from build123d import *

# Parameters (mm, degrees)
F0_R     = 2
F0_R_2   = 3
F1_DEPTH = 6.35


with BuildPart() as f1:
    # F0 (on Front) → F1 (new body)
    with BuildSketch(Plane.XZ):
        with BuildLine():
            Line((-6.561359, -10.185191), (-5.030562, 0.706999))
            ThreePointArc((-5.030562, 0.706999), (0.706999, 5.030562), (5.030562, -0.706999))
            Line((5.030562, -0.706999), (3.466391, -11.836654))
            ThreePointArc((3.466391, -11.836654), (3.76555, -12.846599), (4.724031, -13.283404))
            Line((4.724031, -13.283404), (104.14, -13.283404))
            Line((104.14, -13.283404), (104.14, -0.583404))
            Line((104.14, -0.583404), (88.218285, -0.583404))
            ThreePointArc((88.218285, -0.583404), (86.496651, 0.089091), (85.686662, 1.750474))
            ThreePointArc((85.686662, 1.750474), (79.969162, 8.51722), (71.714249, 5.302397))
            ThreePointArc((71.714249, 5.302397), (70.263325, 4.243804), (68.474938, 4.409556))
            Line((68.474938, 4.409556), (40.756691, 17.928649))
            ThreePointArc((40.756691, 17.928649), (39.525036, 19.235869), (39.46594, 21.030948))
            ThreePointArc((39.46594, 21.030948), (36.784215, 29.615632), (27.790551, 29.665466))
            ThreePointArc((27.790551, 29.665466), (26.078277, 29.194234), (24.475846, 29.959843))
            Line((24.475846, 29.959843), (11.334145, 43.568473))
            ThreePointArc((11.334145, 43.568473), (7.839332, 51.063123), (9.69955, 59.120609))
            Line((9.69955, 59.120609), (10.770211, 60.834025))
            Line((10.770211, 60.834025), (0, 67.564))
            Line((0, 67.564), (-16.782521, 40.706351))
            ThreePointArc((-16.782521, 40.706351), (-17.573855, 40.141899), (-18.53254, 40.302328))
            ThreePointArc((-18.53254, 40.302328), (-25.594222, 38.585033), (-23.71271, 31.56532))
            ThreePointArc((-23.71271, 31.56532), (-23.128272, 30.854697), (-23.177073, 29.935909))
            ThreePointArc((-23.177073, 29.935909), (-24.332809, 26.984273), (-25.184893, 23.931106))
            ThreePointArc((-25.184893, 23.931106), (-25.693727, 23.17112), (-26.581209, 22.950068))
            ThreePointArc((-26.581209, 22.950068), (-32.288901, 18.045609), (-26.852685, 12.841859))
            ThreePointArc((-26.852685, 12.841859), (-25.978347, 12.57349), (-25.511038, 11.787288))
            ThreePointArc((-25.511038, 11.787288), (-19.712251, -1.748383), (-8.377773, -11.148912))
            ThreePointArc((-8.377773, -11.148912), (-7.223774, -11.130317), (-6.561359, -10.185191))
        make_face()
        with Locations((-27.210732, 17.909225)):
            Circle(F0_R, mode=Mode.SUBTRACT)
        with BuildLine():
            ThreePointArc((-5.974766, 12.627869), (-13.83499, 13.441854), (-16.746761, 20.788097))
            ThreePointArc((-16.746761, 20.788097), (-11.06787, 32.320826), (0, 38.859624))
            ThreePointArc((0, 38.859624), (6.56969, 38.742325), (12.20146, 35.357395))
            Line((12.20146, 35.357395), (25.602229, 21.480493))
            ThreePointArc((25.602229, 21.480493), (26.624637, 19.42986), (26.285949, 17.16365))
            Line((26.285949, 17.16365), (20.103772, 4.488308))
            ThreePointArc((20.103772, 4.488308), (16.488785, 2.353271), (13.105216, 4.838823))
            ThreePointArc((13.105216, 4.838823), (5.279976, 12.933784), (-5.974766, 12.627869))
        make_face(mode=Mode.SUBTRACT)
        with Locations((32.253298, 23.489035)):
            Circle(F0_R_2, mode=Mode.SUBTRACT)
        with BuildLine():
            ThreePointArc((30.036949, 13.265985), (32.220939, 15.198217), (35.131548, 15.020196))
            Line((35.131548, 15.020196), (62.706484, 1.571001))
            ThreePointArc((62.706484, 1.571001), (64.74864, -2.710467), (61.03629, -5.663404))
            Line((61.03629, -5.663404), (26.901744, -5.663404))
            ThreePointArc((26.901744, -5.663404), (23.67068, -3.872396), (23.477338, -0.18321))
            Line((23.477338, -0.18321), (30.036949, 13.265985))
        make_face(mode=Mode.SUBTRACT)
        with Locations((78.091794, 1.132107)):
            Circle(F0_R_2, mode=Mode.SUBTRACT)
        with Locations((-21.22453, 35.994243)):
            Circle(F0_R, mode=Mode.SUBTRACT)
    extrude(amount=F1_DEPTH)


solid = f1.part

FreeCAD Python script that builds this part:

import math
import FreeCAD as App
import Part
import Sketcher
from FreeCAD import Vector
Q = App.Units.Quantity

doc = App.newDocument("Part")
body = doc.addObject("PartDesign::Body", "Body")

sketch1 = doc.addObject("Sketcher::SketchObject", "Sketch")
body.addObject(sketch1)
sketch1.AttachmentSupport = (doc.XZ_Plane, [""])
sketch1.MapMode = "FlatFace"
sketch1.addGeometry(Part.LineSegment(Vector(-6.561359, -10.185191, 0), Vector(-5.030562, 0.706999, 0)), False)
sketch1.addGeometry(Part.ArcOfCircle(Part.Circle(Vector(0, 0, 0), Vector(0, 0, 1), 5.08), math.radians(-7.999996), math.radians(172.000004)), False)
sketch1.addGeometry(Part.LineSegment(Vector(5.030562, -0.706999, 0), Vector(3.466391, -11.836654, 0)), False)
sketch1.addGeometry(Part.ArcOfCircle(Part.Circle(Vector(4.724031, -12.013404, 0), Vector(0, 0, 1), 1.27), math.radians(171.999971), math.radians(270.000002)), False)
sketch1.addGeometry(Part.LineSegment(Vector(4.724031, -13.283404, 0), Vector(104.14, -13.283404, 0)), False)
sketch1.addGeometry(Part.LineSegment(Vector(104.14, -13.283404, 0), Vector(104.14, -0.583404, 0)), False)
sketch1.addGeometry(Part.LineSegment(Vector(104.14, -0.583404, 0), Vector(88.218285, -0.583404, 0)), False)
sketch1.addGeometry(Part.ArcOfCircle(Part.Circle(Vector(88.218286, 1.956597, 0), Vector(0, 0, 1), 2.540001), math.radians(-175.34528), math.radians(-90.000021)), False)
sketch1.addGeometry(Part.ArcOfCircle(Part.Circle(Vector(78.091794, 1.132108, 0), Vector(0, 0, 1), 7.62), math.radians(4.654697), math.radians(146.819248)), False)
sketch1.addGeometry(Part.ArcOfCircle(Part.Circle(Vector(69.588401, 6.692492, 0), Vector(0, 0, 1), 2.539999), math.radians(-116.000009), math.radians(-33.180721)), False)
sketch1.addGeometry(Part.LineSegment(Vector(68.474938, 4.409556, 0), Vector(40.756691, 17.928649, 0)), False)
sketch1.addGeometry(Part.ArcOfCircle(Part.Circle(Vector(41.870153, 20.211585, 0), Vector(0, 0, 1), 2.539999), math.radians(161.180736), math.radians(244.000013)), False)
sketch1.addGeometry(Part.ArcOfCircle(Part.Circle(Vector(32.253297, 23.489035, 0), Vector(0, 0, 1), 7.62), math.radians(-18.819241), math.radians(125.849787)), False)
sketch1.addGeometry(Part.ArcOfCircle(Part.Circle(Vector(26.302969, 31.724277, 0), Vector(0, 0, 1), 2.540001), math.radians(-135.99996), math.radians(-54.15022)), False)
sketch1.addGeometry(Part.LineSegment(Vector(24.475846, 29.959843, 0), Vector(11.334145, 43.568473, 0)), False)
sketch1.addGeometry(Part.ArcOfCircle(Part.Circle(Vector(20.469758, 52.390634, 0), Vector(0, 0, 1), 12.699998), math.radians(147.999991), math.radians(224.000006)), False)
sketch1.addGeometry(Part.LineSegment(Vector(9.69955, 59.120609, 0), Vector(10.770211, 60.834025, 0)), False)
sketch1.addGeometry(Part.LineSegment(Vector(10.770211, 60.834025, 0), Vector(0, 67.564, 0)), False)
sketch1.addGeometry(Part.LineSegment(Vector(0, 67.564, 0), Vector(-16.782521, 40.706351, 0)), False)
sketch1.addGeometry(Part.ArcOfCircle(Part.Circle(Vector(-17.859542, 41.37935, 0), Vector(0, 0, 1), 1.270001), math.radians(-121.99998), math.radians(-32.000064)), False)
sketch1.addGeometry(Part.ArcOfCircle(Part.Circle(Vector(-21.22453, 35.994243, 0), Vector(0, 0, 1), 5.08), math.radians(58.000004), math.radians(240.672612)), False)
sketch1.addGeometry(Part.ArcOfCircle(Part.Circle(Vector(-24.334756, 30.458089, 0), Vector(0, 0, 1), 1.270001), math.radians(-24.278034), math.radians(60.67257)), False)
sketch1.addGeometry(Part.ArcOfCircle(Part.Circle(Vector(5.429792, 17.032582, 0), Vector(0, 0, 1), 31.382297), math.radians(155.721911), math.radians(167.301413)), False)
sketch1.addGeometry(Part.ArcOfCircle(Part.Circle(Vector(-26.423829, 24.210279, 0), Vector(0, 0, 1), 1.27), math.radians(-97.118473), math.radians(-12.698521)), False)
sketch1.addGeometry(Part.ArcOfCircle(Part.Circle(Vector(-27.210732, 17.909225, 0), Vector(0, 0, 1), 5.08), math.radians(82.881497), math.radians(274.041659)), False)
sketch1.addGeometry(Part.ArcOfCircle(Part.Circle(Vector(-26.763174, 11.575016, 0), Vector(0, 0, 1), 1.270001), math.radians(9.621757), math.radians(94.041625)), False)
sketch1.addGeometry(Part.ArcOfCircle(Part.Circle(Vector(5.42974, 17.0326, 0), Vector(0, 0, 1), 31.382241), math.radians(-170.378269), math.radians(-116.102513)), False)
sketch1.addGeometry(Part.ArcOfCircle(Part.Circle(Vector(-7.819001, -10.00844, 0), Vector(0, 0, 1), 1.270001), math.radians(-116.102456), math.radians(-8.000062)), False)
sketch1.addGeometry(Part.LineSegment(Vector(23.477338, -0.18321, 0), Vector(30.036949, 13.265985, 0)), False)
sketch1.addGeometry(Part.ArcOfCircle(Part.Circle(Vector(33.461353, 11.595793, 0), Vector(0, 0, 1), 3.809998), math.radians(63.999976), math.radians(154.000022)), False)
sketch1.addGeometry(Part.LineSegment(Vector(35.131548, 15.020196, 0), Vector(62.706484, 1.571001, 0)), False)
sketch1.addGeometry(Part.ArcOfCircle(Part.Circle(Vector(61.03629, -1.853404, 0), Vector(0, 0, 1), 3.81), math.radians(-90.000001), math.radians(64.000001)), False)
sketch1.addGeometry(Part.LineSegment(Vector(61.03629, -5.663404, 0), Vector(26.901744, -5.663404, 0)), False)
sketch1.addGeometry(Part.ArcOfCircle(Part.Circle(Vector(26.901744, -1.853404, 0), Vector(0, 0, 1), 3.81), math.radians(154.000004), math.radians(270.000006)), False)
sketch1.addGeometry(Part.Circle(Vector(78.091794, 1.132107, 0), Vector(0, 0, 1), 3), False)
sketch1.addGeometry(Part.Circle(Vector(-27.210732, 17.909225, 0), Vector(0, 0, 1), 2), False)
sketch1.addGeometry(Part.ArcOfCircle(Part.Circle(Vector(0, 0.000002, 0), Vector(0, 0, 1), 13.969999), math.radians(20.265592), math.radians(115.320768)), False)
sketch1.addGeometry(Part.ArcOfCircle(Part.Circle(Vector(-9.233729, 19.515798, 0), Vector(0, 0, 1), 7.62), math.radians(170.388399), math.radians(295.320757)), False)
sketch1.addGeometry(Part.ArcOfCircle(Part.Circle(Vector(5.429743, 17.0326, 0), Vector(0, 0, 1), 22.492245), math.radians(103.969486), math.radians(170.388391)), False)
sketch1.addGeometry(Part.ArcOfCircle(Part.Circle(Vector(3.065846, 26.535237, 0), Vector(0, 0, 1), 12.699997), math.radians(43.999992), math.radians(103.969492)), False)
sketch1.addGeometry(Part.LineSegment(Vector(12.20146, 35.357395, 0), Vector(25.602229, 21.480493, 0)), False)
sketch1.addGeometry(Part.ArcOfCircle(Part.Circle(Vector(22.861546, 18.833845, 0), Vector(0, 0, 1), 3.809999), math.radians(-26.000028), math.radians(44.000008)), False)
sketch1.addGeometry(Part.LineSegment(Vector(26.285949, 17.16365, 0), Vector(20.103772, 4.488308, 0)), False)
sketch1.addGeometry(Part.ArcOfCircle(Part.Circle(Vector(16.679366, 6.158502, 0), Vector(0, 0, 1), 3.81), math.radians(-159.734409), math.radians(-25.999992)), False)
sketch1.addGeometry(Part.Circle(Vector(-21.22453, 35.994243, 0), Vector(0, 0, 1), 2), False)
sketch1.addGeometry(Part.Circle(Vector(32.253298, 23.489035, 0), Vector(0, 0, 1), 3), False)
sketch1.addConstraint(Sketcher.Constraint("Coincident", 0, 2, 1, 2))
sketch1.addConstraint(Sketcher.Constraint("Coincident", 1, 1, 2, 1))
sketch1.addConstraint(Sketcher.Constraint("Coincident", 2, 2, 3, 1))
sketch1.addConstraint(Sketcher.Constraint("Coincident", 3, 2, 4, 1))
sketch1.addConstraint(Sketcher.Constraint("Coincident", 4, 2, 5, 1))
sketch1.addConstraint(Sketcher.Constraint("Coincident", 5, 2, 6, 1))
sketch1.addConstraint(Sketcher.Constraint("Coincident", 6, 2, 7, 2))
sketch1.addConstraint(Sketcher.Constraint("Coincident", 7, 1, 8, 1))
sketch1.addConstraint(Sketcher.Constraint("Coincident", 8, 2, 9, 2))
sketch1.addConstraint(Sketcher.Constraint("Coincident", 9, 1, 10, 1))
sketch1.addConstraint(Sketcher.Constraint("Coincident", 10, 2, 11, 2))
sketch1.addConstraint(Sketcher.Constraint("Coincident", 11, 1, 12, 1))
sketch1.addConstraint(Sketcher.Constraint("Coincident", 12, 2, 13, 2))
sketch1.addConstraint(Sketcher.Constraint("Coincident", 13, 1, 14, 1))
sketch1.addConstraint(Sketcher.Constraint("Coincident", 14, 2, 15, 2))
sketch1.addConstraint(Sketcher.Constraint("Coincident", 15, 1, 16, 1))
sketch1.addConstraint(Sketcher.Constraint("Coincident", 16, 2, 17, 1))
sketch1.addConstraint(Sketcher.Constraint("Coincident", 17, 2, 18, 1))
sketch1.addConstraint(Sketcher.Constraint("Coincident", 18, 2, 19, 2))
sketch1.addConstraint(Sketcher.Constraint("Coincident", 19, 1, 20, 1))
sketch1.addConstraint(Sketcher.Constraint("Coincident", 20, 2, 21, 2))
sketch1.addConstraint(Sketcher.Constraint("Coincident", 21, 1, 22, 1))
sketch1.addConstraint(Sketcher.Constraint("Coincident", 22, 2, 23, 2))
sketch1.addConstraint(Sketcher.Constraint("Coincident", 23, 1, 24, 1))
sketch1.addConstraint(Sketcher.Constraint("Coincident", 24, 2, 25, 2))
sketch1.addConstraint(Sketcher.Constraint("Coincident", 25, 1, 26, 1))
sketch1.addConstraint(Sketcher.Constraint("Coincident", 26, 2, 27, 1))
sketch1.addConstraint(Sketcher.Constraint("Coincident", 27, 2, 0, 1))
sketch1.addConstraint(Sketcher.Constraint("Coincident", 28, 2, 29, 2))
sketch1.addConstraint(Sketcher.Constraint("Coincident", 29, 1, 30, 1))
sketch1.addConstraint(Sketcher.Constraint("Coincident", 30, 2, 31, 2))
sketch1.addConstraint(Sketcher.Constraint("Coincident", 31, 1, 32, 1))
sketch1.addConstraint(Sketcher.Constraint("Coincident", 32, 2, 33, 2))
sketch1.addConstraint(Sketcher.Constraint("Coincident", 33, 1, 28, 1))
sketch1.addConstraint(Sketcher.Constraint("Coincident", 36, 2, 37, 2))
sketch1.addConstraint(Sketcher.Constraint("Coincident", 37, 1, 38, 2))
sketch1.addConstraint(Sketcher.Constraint("Coincident", 38, 1, 39, 2))
sketch1.addConstraint(Sketcher.Constraint("Coincident", 39, 1, 40, 1))
sketch1.addConstraint(Sketcher.Constraint("Coincident", 40, 2, 41, 2))
sketch1.addConstraint(Sketcher.Constraint("Coincident", 41, 1, 42, 1))
sketch1.addConstraint(Sketcher.Constraint("Coincident", 42, 2, 43, 2))
sketch1.addConstraint(Sketcher.Constraint("Coincident", 43, 1, 36, 1))
sketch1.addConstraint(Sketcher.Constraint("Horizontal", 4))
sketch1.addConstraint(Sketcher.Constraint("Vertical", 5))
sketch1.addConstraint(Sketcher.Constraint("Horizontal", 6))
sketch1.addConstraint(Sketcher.Constraint("Horizontal", 32))
sketch1.addConstraint(Sketcher.Constraint("Coincident", 1, 3, -1, 1))
sketch1.addConstraint(Sketcher.Constraint("Coincident", 36, 3, -1, 1))
sketch1.addConstraint(Sketcher.Constraint("Coincident", 34, 3, 8, 3))
sketch1.addConstraint(Sketcher.Constraint("Coincident", 35, 3, 24, 3))
sketch1.addConstraint(Sketcher.Constraint("Coincident", 38, 3, 26, 3))
sketch1.addConstraint(Sketcher.Constraint("Coincident", 44, 3, 20, 3))
sketch1.addConstraint(Sketcher.Constraint("Coincident", 45, 3, 12, 3))
sketch1.addConstraint(Sketcher.Constraint("PointOnObject", 17, 2, -2))
sketch1.addConstraint(Sketcher.Constraint("PointOnObject", 38, 1, -2))
sketch1.addConstraint(Sketcher.Constraint("Radius", 1, Q("0.2 in")))
sketch1.addConstraint(Sketcher.Constraint("Radius", 7, Q("0.1000001 in")))
sketch1.addConstraint(Sketcher.Constraint("Radius", 8, Q("0.3 in")))
sketch1.addConstraint(Sketcher.Constraint("Radius", 9, Q("0.1 in")))
sketch1.addConstraint(Sketcher.Constraint("Radius", 11, Q("0.1 in")))
sketch1.addConstraint(Sketcher.Constraint("Radius", 12, Q("0.3 in")))
sketch1.addConstraint(Sketcher.Constraint("Radius", 13, Q("0.1 in")))
sketch1.addConstraint(Sketcher.Constraint("Radius", 15, Q("0.4999999 in")))
sketch1.addConstraint(Sketcher.Constraint("Radius", 20, Q("0.2 in")))
sketch1.addConstraint(Sketcher.Constraint("Radius", 24, Q("0.2 in")))
sketch1.addConstraint(Sketcher.Constraint("Radius", 37, Q("0.3 in")))
sketch1.addConstraint(Sketcher.Constraint("Radius", 39, Q("0.4999999 in")))
sketch1.addConstraint(Sketcher.Constraint("Radius", 3, Q("0.05 in")))
sketch1.addConstraint(Sketcher.Constraint("Radius", 19, Q("0.05 in")))
sketch1.addConstraint(Sketcher.Constraint("Radius", 21, Q("0.05 in")))
sketch1.addConstraint(Sketcher.Constraint("Radius", 23, Q("0.05 in")))
sketch1.addConstraint(Sketcher.Constraint("Radius", 25, Q("0.0500001 in")))
sketch1.addConstraint(Sketcher.Constraint("Radius", 27, Q("0.0500001 in")))
sketch1.addConstraint(Sketcher.Constraint("Radius", 29, Q("0.1499999 in")))
sketch1.addConstraint(Sketcher.Constraint("Radius", 31, Q("0.15 in")))
sketch1.addConstraint(Sketcher.Constraint("Radius", 33, Q("0.15 in")))
sketch1.addConstraint(Sketcher.Constraint("Radius", 36, Q("0.55 in")))
sketch1.addConstraint(Sketcher.Constraint("Radius", 41, Q("0.1499999 in")))
sketch1.addConstraint(Sketcher.Constraint("Radius", 43, Q("0.15 in")))
sketch1.addConstraint(Sketcher.Constraint("DistanceY", 5, 1, 5, 2, Q("0.5 in")))
sketch1.addConstraint(Sketcher.Constraint("Distance", 17, Q("0.5 in")))
sketch1.addConstraint(Sketcher.Constraint("DistanceX", -1, 1, 4, 2, Q("4.1 in")))
sketch1.addConstraint(Sketcher.Constraint("Diameter", 34, 6.0))
sketch1.addConstraint(Sketcher.Constraint("Diameter", 35, 4.0))
sketch1.addConstraint(Sketcher.Constraint("Diameter", 44, 4.0))
sketch1.addConstraint(Sketcher.Constraint("Diameter", 45, 6.0))
sketch1.addConstraint(Sketcher.Constraint("DistanceY", -1, 1, 17, 2, Q("2.66 in")))
sketch1.addConstraint(Sketcher.Constraint("Radius", 26, 31.382241))
sketch1.addConstraint(Sketcher.Constraint("Radius", 22, 31.382297))
sketch1.addConstraint(Sketcher.Constraint("Radius", 38, 22.492245))
sketch1.addConstraint(Sketcher.Constraint("Distance", 28, 14.963601))
sketch1.addConstraint(Sketcher.Constraint("DistanceX", 4, 1, 4, 2, 99.415969))
sketch1.addConstraint(Sketcher.Constraint("DistanceX", -1, 1, 9, 3, 69.588401))
sketch1.addConstraint(Sketcher.Constraint("DistanceY", -1, 1, 26, 3, 17.0326))
sketch1.addConstraint(Sketcher.Constraint("DistanceX", 27, 3, -1, 1, 7.819001))
sketch1.addConstraint(Sketcher.Constraint("DistanceY", -1, 1, 43, 3, 6.158502))
sketch1.addConstraint(Sketcher.Constraint("DistanceY", -1, 1, 0, 2, 0.706999))
sketch1.addConstraint(Sketcher.Constraint("DistanceY", 1, 1, -1, 1, 0.706999))
sketch1.addConstraint(Sketcher.Constraint("DistanceY", -1, 1, 30, 2, 1.571001))
sketch1.addConstraint(Sketcher.Constraint("Distance", 14, 18.918222))
sketch1.addConstraint(Sketcher.Constraint("Distance", 18, 31.669959))
sketch1.addConstraint(Sketcher.Constraint("Distance", 42, 14.10261))
sketch1.addConstraint(Sketcher.Constraint("DistanceX", 6, 2, 6, 1, 15.921715))
sketch1.addConstraint(Sketcher.Constraint("DistanceX", 32, 2, 32, 1, 34.134546))
sketch1.addConstraint(Sketcher.Constraint("DistanceX", -1, 1, 3, 3, 4.724031))
sketch1.addConstraint(Sketcher.Constraint("DistanceY", -1, 1, 9, 3, 6.692492))
sketch1.addConstraint(Sketcher.Constraint("DistanceX", -1, 1, 13, 3, 26.302969))
sketch1.addConstraint(Sketcher.Constraint("DistanceX", -1, 1, 15, 3, 20.469758))
sketch1.addConstraint(Sketcher.Constraint("DistanceY", -1, 1, 19, 3, 41.37935))
sketch1.addConstraint(Sketcher.Constraint("DistanceX", 20, 3, -1, 1, 21.22453))
sketch1.addConstraint(Sketcher.Constraint("DistanceY", -1, 1, 21, 3, 30.458089))
sketch1.addConstraint(Sketcher.Constraint("DistanceX", -1, 1, 22, 3, 5.429792))
sketch1.addConstraint(Sketcher.Constraint("DistanceX", 23, 3, -1, 1, 26.423829))
sketch1.addConstraint(Sketcher.Constraint("DistanceY", -1, 1, 23, 3, 24.210279))
sketch1.addConstraint(Sketcher.Constraint("DistanceX", -1, 1, 26, 3, 5.42974))
sketch1.addConstraint(Sketcher.Constraint("DistanceX", -1, 1, 31, 3, 61.03629))
sketch1.addConstraint(Sketcher.Constraint("DistanceX", 35, 3, -1, 1, 27.210732))
sketch1.addConstraint(Sketcher.Constraint("DistanceX", -1, 1, 2, 2, 3.466391))
sketch1.addConstraint(Sketcher.Constraint("DistanceX", -1, 1, 7, 1, 85.686662))
sketch1.addConstraint(Sketcher.Constraint("DistanceX", -1, 1, 8, 2, 71.714249))
sketch1.addConstraint(Sketcher.Constraint("DistanceX", -1, 1, 9, 1, 68.474938))
sketch1.addConstraint(Sketcher.Constraint("DistanceX", -1, 1, 10, 2, 40.756691))
sketch1.addConstraint(Sketcher.Constraint("DistanceY", -1, 1, 10, 2, 17.928649))
sketch1.addConstraint(Sketcher.Constraint("DistanceX", -1, 1, 11, 1, 39.46594))
sketch1.addConstraint(Sketcher.Constraint("DistanceY", -1, 1, 11, 1, 21.030948))
sketch1.addConstraint(Sketcher.Constraint("DistanceX", -1, 1, 12, 2, 27.790551))
sketch1.addConstraint(Sketcher.Constraint("DistanceX", -1, 1, 15, 1, 9.69955))
sketch1.addConstraint(Sketcher.Constraint("DistanceY", -1, 1, 15, 1, 59.120609))
sketch1.addConstraint(Sketcher.Constraint("DistanceX", -1, 1, 16, 2, 10.770211))
sketch1.addConstraint(Sketcher.Constraint("DistanceX", 19, 1, -1, 1, 18.53254))
sketch1.addConstraint(Sketcher.Constraint("DistanceX", 20, 2, -1, 1, 23.71271))
sketch1.addConstraint(Sketcher.Constraint("DistanceY", -1, 1, 21, 1, 29.935909))
sketch1.addConstraint(Sketcher.Constraint("DistanceX", 23, 1, -1, 1, 26.581209))
sketch1.addConstraint(Sketcher.Constraint("DistanceY", -1, 1, 24, 2, 12.841859))
sketch1.addConstraint(Sketcher.Constraint("DistanceX", 25, 1, -1, 1, 25.511038))
sketch1.addConstraint(Sketcher.Constraint("DistanceY", 26, 2, -1, 1, 11.148912))
sketch1.addConstraint(Sketcher.Constraint("DistanceX", 27, 2, -1, 1, 6.561359))
sketch1.addConstraint(Sketcher.Constraint("DistanceX", -1, 1, 28, 2, 30.036949))
sketch1.addConstraint(Sketcher.Constraint("DistanceX", -1, 1, 29, 1, 35.131548))
sketch1.addConstraint(Sketcher.Constraint("DistanceX", -1, 1, 31, 1, 61.03629))
sketch1.addConstraint(Sketcher.Constraint("DistanceY", 33, 1, -1, 1, 0.18321))
sketch1.addConstraint(Sketcher.Constraint("DistanceY", -1, 1, 36, 2, 12.627869))
sketch1.addConstraint(Sketcher.Constraint("DistanceX", 37, 1, -1, 1, 16.746761))
sketch1.addConstraint(Sketcher.Constraint("DistanceX", -1, 1, 39, 1, 12.20146))
sketch1.addConstraint(Sketcher.Constraint("DistanceX", -1, 1, 40, 2, 25.602229))
sketch1.addConstraint(Sketcher.Constraint("DistanceX", -1, 1, 41, 1, 26.285949))
sketch1.addConstraint(Sketcher.Constraint("DistanceY", -1, 1, 41, 1, 17.16365))
sketch1.addConstraint(Sketcher.Constraint("Distance", 2, 11.239032))
sketch1.addConstraint(Sketcher.Constraint("Distance", 30, 30.679927))
sketch1.addConstraint(Sketcher.Constraint("Distance", 40, 19.291164))
sketch1.addConstraint(Sketcher.Constraint("DistanceX", -1, 1, 7, 3, 88.218286))
sketch1.addConstraint(Sketcher.Constraint("DistanceX", -1, 1, 12, 3, 32.253297))
sketch1.addConstraint(Sketcher.Constraint("DistanceX", -1, 1, 29, 3, 33.461353))
sketch1.addConstraint(Sketcher.Constraint("DistanceY", -1, 1, 29, 3, 11.595793))
sketch1.addConstraint(Sketcher.Constraint("DistanceX", -1, 1, 39, 3, 3.065846))
sketch1.addConstraint(Sketcher.Constraint("DistanceX", -1, 1, 13, 1, 24.475846))
sketch1.addConstraint(Sketcher.Constraint("DistanceX", 22, 2, -1, 1, 25.184893))
sketch1.addConstraint(Sketcher.Constraint("DistanceX", -1, 1, 43, 1, 13.105216))
pad1 = doc.addObject("PartDesign::Pad", "Pad")
body.addObject(pad1)
pad1.Profile = sketch1
pad1.Length = Q("0.25 in")

doc.recompute()
